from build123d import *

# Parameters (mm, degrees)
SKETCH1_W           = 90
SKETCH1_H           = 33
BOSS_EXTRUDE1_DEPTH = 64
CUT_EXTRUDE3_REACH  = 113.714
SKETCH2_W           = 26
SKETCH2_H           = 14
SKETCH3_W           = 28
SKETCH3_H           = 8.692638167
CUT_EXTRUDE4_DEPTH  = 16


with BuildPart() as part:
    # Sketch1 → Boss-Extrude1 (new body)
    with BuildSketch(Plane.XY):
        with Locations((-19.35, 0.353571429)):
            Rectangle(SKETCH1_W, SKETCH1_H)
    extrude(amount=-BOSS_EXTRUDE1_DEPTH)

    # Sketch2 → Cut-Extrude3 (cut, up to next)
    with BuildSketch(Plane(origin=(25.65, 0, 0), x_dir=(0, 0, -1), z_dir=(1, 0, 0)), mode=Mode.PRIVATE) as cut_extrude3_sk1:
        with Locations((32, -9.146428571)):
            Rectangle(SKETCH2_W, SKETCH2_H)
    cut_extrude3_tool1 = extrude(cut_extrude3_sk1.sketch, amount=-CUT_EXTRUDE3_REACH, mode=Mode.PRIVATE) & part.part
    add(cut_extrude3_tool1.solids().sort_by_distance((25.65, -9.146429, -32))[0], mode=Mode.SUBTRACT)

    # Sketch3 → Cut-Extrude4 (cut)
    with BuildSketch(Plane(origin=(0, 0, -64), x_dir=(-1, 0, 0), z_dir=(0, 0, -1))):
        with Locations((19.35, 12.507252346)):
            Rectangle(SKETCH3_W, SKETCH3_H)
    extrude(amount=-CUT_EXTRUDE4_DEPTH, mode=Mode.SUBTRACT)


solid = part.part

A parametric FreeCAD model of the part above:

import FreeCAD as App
import Part
import Sketcher
Q = App.Units.Quantity


def add_polygon(sketch, points):
    """Adds a closed chain of lines whose ends are joined by coincident constraints."""
    first, n = sketch.GeometryCount, len(points)
    for a, b in zip(points, points[1:] + points[:1]):
        sketch.addGeometry(Part.LineSegment(App.Vector(*a, 0), App.Vector(*b, 0)), False)
    for i in range(n):
        sketch.addConstraint(Sketcher.Constraint("Coincident", first + i, 2, first + (i + 1) % n, 1))

doc = App.newDocument("Part")
body = doc.addObject("PartDesign::Body", "Body")

# Sketch on XY plane
sketch1 = body.newObject("Sketcher::SketchObject", "Sketch")
sketch1.AttachmentSupport = (doc.getObject("XY_Plane"), [""])
sketch1.MapMode = "FlatFace"
add_polygon(sketch1, [(-64, 17), (-64, -16), (26, -16), (26, 17)])  # lines 0-3
sketch1.addConstraint(Sketcher.Constraint("Vertical", 0))
sketch1.addConstraint(Sketcher.Constraint("Horizontal", 1))
sketch1.addConstraint(Sketcher.Constraint("Vertical", 2))
sketch1.addConstraint(Sketcher.Constraint("Horizontal", 3))
sketch1.addConstraint(Sketcher.Constraint("DistanceX", 1, 1, 1, 2, Q("90 mm")))
sketch1.addConstraint(Sketcher.Constraint("DistanceY", 0, 2, 0, 1, Q("33 mm")))
sketch1.addConstraint(Sketcher.Constraint("DistanceX", 0, 2, -1, 1, Q("64.35 mm")))
sketch1.addConstraint(Sketcher.Constraint("DistanceY", 0, 2, -1, 1, Q("16.146429 mm")))
pad1 = body.newObject("PartDesign::Pad", "Pad")
pad1.Profile = sketch1
pad1.Length = 64
pad1.Reversed = True

# Sketch on YZ plane
sketch2 = body.newObject("Sketcher::SketchObject", "Sketch001")
sketch2.AttachmentSupport = (doc.getObject("YZ_Plane"), [""])
sketch2.MapMode = "FlatFace"
sketch2.AttachmentOffset = App.Placement(App.Vector(0, 0, 25.65), App.Rotation())
add_polygon(sketch2, [(-2, -19), (-16, -19), (-16, -45), (-2, -45)])  # lines 0-3
sketch2.addConstraint(Sketcher.Constraint("Horizontal", 0))
sketch2.addConstraint(Sketcher.Constraint("Vertical", 1))
sketch2.addConstraint(Sketcher.Constraint("Horizontal", 2))
sketch2.addConstraint(Sketcher.Constraint("Vertical", 3))
sketch2.addConstraint(Sketcher.Constraint("DistanceX", 0, 2, 0, 1, Q("14 mm")))
sketch2.addConstraint(Sketcher.Constraint("DistanceY", 1, 2, 1, 1, Q("26 mm")))
sketch2.addConstraint(Sketcher.Constraint("DistanceY", 0, 2, -1, 1, Q("19 mm")))
sketch2.addConstraint(Sketcher.Constraint("DistanceX", 0, 2, -1, 1, Q("16.146429 mm")))
pocket1 = body.newObject("PartDesign::Pocket", "Pocket")
pocket1.Profile = sketch2
pocket1.Type = "UpToFirst"

# Sketch on XY plane
sketch3 = body.newObject("Sketcher::SketchObject", "Sketch002")
sketch3.AttachmentSupport = (doc.getObject("XY_Plane"), [""])
sketch3.MapMode = "FlatFace"
sketch3.AttachmentOffset = App.Placement(App.Vector(0, 0, -64), App.Rotation())
add_polygon(sketch3, [(-5, 17), (-5, 8), (-33, 8), (-33, 17)])  # lines 0-3
sketch3.addConstraint(Sketcher.Constraint("Vertical", 0))
sketch3.addConstraint(Sketcher.Constraint("Horizontal", 1))
sketch3.addConstraint(Sketcher.Constraint("Vertical", 2))
sketch3.addConstraint(Sketcher.Constraint("Horizontal", 3))
sketch3.addConstraint(Sketcher.Constraint("DistanceX", 1, 2, 1, 1, Q("28 mm")))
sketch3.addConstraint(Sketcher.Constraint("DistanceX", 0, 2, -1, 1, Q("5.35 mm")))
sketch3.addConstraint(Sketcher.Constraint("DistanceY", 0, 2, 0, 1, Q("8.692638 mm")))
sketch3.addConstraint(Sketcher.Constraint("DistanceY", -1, 1, 2, 2, Q("16.853571 mm")))
pocket2 = body.newObject("PartDesign::Pocket", "Pocket001")
pocket2.Profile = sketch3
pocket2.Length = 16
pocket2.Reversed = True

doc.recompute()
